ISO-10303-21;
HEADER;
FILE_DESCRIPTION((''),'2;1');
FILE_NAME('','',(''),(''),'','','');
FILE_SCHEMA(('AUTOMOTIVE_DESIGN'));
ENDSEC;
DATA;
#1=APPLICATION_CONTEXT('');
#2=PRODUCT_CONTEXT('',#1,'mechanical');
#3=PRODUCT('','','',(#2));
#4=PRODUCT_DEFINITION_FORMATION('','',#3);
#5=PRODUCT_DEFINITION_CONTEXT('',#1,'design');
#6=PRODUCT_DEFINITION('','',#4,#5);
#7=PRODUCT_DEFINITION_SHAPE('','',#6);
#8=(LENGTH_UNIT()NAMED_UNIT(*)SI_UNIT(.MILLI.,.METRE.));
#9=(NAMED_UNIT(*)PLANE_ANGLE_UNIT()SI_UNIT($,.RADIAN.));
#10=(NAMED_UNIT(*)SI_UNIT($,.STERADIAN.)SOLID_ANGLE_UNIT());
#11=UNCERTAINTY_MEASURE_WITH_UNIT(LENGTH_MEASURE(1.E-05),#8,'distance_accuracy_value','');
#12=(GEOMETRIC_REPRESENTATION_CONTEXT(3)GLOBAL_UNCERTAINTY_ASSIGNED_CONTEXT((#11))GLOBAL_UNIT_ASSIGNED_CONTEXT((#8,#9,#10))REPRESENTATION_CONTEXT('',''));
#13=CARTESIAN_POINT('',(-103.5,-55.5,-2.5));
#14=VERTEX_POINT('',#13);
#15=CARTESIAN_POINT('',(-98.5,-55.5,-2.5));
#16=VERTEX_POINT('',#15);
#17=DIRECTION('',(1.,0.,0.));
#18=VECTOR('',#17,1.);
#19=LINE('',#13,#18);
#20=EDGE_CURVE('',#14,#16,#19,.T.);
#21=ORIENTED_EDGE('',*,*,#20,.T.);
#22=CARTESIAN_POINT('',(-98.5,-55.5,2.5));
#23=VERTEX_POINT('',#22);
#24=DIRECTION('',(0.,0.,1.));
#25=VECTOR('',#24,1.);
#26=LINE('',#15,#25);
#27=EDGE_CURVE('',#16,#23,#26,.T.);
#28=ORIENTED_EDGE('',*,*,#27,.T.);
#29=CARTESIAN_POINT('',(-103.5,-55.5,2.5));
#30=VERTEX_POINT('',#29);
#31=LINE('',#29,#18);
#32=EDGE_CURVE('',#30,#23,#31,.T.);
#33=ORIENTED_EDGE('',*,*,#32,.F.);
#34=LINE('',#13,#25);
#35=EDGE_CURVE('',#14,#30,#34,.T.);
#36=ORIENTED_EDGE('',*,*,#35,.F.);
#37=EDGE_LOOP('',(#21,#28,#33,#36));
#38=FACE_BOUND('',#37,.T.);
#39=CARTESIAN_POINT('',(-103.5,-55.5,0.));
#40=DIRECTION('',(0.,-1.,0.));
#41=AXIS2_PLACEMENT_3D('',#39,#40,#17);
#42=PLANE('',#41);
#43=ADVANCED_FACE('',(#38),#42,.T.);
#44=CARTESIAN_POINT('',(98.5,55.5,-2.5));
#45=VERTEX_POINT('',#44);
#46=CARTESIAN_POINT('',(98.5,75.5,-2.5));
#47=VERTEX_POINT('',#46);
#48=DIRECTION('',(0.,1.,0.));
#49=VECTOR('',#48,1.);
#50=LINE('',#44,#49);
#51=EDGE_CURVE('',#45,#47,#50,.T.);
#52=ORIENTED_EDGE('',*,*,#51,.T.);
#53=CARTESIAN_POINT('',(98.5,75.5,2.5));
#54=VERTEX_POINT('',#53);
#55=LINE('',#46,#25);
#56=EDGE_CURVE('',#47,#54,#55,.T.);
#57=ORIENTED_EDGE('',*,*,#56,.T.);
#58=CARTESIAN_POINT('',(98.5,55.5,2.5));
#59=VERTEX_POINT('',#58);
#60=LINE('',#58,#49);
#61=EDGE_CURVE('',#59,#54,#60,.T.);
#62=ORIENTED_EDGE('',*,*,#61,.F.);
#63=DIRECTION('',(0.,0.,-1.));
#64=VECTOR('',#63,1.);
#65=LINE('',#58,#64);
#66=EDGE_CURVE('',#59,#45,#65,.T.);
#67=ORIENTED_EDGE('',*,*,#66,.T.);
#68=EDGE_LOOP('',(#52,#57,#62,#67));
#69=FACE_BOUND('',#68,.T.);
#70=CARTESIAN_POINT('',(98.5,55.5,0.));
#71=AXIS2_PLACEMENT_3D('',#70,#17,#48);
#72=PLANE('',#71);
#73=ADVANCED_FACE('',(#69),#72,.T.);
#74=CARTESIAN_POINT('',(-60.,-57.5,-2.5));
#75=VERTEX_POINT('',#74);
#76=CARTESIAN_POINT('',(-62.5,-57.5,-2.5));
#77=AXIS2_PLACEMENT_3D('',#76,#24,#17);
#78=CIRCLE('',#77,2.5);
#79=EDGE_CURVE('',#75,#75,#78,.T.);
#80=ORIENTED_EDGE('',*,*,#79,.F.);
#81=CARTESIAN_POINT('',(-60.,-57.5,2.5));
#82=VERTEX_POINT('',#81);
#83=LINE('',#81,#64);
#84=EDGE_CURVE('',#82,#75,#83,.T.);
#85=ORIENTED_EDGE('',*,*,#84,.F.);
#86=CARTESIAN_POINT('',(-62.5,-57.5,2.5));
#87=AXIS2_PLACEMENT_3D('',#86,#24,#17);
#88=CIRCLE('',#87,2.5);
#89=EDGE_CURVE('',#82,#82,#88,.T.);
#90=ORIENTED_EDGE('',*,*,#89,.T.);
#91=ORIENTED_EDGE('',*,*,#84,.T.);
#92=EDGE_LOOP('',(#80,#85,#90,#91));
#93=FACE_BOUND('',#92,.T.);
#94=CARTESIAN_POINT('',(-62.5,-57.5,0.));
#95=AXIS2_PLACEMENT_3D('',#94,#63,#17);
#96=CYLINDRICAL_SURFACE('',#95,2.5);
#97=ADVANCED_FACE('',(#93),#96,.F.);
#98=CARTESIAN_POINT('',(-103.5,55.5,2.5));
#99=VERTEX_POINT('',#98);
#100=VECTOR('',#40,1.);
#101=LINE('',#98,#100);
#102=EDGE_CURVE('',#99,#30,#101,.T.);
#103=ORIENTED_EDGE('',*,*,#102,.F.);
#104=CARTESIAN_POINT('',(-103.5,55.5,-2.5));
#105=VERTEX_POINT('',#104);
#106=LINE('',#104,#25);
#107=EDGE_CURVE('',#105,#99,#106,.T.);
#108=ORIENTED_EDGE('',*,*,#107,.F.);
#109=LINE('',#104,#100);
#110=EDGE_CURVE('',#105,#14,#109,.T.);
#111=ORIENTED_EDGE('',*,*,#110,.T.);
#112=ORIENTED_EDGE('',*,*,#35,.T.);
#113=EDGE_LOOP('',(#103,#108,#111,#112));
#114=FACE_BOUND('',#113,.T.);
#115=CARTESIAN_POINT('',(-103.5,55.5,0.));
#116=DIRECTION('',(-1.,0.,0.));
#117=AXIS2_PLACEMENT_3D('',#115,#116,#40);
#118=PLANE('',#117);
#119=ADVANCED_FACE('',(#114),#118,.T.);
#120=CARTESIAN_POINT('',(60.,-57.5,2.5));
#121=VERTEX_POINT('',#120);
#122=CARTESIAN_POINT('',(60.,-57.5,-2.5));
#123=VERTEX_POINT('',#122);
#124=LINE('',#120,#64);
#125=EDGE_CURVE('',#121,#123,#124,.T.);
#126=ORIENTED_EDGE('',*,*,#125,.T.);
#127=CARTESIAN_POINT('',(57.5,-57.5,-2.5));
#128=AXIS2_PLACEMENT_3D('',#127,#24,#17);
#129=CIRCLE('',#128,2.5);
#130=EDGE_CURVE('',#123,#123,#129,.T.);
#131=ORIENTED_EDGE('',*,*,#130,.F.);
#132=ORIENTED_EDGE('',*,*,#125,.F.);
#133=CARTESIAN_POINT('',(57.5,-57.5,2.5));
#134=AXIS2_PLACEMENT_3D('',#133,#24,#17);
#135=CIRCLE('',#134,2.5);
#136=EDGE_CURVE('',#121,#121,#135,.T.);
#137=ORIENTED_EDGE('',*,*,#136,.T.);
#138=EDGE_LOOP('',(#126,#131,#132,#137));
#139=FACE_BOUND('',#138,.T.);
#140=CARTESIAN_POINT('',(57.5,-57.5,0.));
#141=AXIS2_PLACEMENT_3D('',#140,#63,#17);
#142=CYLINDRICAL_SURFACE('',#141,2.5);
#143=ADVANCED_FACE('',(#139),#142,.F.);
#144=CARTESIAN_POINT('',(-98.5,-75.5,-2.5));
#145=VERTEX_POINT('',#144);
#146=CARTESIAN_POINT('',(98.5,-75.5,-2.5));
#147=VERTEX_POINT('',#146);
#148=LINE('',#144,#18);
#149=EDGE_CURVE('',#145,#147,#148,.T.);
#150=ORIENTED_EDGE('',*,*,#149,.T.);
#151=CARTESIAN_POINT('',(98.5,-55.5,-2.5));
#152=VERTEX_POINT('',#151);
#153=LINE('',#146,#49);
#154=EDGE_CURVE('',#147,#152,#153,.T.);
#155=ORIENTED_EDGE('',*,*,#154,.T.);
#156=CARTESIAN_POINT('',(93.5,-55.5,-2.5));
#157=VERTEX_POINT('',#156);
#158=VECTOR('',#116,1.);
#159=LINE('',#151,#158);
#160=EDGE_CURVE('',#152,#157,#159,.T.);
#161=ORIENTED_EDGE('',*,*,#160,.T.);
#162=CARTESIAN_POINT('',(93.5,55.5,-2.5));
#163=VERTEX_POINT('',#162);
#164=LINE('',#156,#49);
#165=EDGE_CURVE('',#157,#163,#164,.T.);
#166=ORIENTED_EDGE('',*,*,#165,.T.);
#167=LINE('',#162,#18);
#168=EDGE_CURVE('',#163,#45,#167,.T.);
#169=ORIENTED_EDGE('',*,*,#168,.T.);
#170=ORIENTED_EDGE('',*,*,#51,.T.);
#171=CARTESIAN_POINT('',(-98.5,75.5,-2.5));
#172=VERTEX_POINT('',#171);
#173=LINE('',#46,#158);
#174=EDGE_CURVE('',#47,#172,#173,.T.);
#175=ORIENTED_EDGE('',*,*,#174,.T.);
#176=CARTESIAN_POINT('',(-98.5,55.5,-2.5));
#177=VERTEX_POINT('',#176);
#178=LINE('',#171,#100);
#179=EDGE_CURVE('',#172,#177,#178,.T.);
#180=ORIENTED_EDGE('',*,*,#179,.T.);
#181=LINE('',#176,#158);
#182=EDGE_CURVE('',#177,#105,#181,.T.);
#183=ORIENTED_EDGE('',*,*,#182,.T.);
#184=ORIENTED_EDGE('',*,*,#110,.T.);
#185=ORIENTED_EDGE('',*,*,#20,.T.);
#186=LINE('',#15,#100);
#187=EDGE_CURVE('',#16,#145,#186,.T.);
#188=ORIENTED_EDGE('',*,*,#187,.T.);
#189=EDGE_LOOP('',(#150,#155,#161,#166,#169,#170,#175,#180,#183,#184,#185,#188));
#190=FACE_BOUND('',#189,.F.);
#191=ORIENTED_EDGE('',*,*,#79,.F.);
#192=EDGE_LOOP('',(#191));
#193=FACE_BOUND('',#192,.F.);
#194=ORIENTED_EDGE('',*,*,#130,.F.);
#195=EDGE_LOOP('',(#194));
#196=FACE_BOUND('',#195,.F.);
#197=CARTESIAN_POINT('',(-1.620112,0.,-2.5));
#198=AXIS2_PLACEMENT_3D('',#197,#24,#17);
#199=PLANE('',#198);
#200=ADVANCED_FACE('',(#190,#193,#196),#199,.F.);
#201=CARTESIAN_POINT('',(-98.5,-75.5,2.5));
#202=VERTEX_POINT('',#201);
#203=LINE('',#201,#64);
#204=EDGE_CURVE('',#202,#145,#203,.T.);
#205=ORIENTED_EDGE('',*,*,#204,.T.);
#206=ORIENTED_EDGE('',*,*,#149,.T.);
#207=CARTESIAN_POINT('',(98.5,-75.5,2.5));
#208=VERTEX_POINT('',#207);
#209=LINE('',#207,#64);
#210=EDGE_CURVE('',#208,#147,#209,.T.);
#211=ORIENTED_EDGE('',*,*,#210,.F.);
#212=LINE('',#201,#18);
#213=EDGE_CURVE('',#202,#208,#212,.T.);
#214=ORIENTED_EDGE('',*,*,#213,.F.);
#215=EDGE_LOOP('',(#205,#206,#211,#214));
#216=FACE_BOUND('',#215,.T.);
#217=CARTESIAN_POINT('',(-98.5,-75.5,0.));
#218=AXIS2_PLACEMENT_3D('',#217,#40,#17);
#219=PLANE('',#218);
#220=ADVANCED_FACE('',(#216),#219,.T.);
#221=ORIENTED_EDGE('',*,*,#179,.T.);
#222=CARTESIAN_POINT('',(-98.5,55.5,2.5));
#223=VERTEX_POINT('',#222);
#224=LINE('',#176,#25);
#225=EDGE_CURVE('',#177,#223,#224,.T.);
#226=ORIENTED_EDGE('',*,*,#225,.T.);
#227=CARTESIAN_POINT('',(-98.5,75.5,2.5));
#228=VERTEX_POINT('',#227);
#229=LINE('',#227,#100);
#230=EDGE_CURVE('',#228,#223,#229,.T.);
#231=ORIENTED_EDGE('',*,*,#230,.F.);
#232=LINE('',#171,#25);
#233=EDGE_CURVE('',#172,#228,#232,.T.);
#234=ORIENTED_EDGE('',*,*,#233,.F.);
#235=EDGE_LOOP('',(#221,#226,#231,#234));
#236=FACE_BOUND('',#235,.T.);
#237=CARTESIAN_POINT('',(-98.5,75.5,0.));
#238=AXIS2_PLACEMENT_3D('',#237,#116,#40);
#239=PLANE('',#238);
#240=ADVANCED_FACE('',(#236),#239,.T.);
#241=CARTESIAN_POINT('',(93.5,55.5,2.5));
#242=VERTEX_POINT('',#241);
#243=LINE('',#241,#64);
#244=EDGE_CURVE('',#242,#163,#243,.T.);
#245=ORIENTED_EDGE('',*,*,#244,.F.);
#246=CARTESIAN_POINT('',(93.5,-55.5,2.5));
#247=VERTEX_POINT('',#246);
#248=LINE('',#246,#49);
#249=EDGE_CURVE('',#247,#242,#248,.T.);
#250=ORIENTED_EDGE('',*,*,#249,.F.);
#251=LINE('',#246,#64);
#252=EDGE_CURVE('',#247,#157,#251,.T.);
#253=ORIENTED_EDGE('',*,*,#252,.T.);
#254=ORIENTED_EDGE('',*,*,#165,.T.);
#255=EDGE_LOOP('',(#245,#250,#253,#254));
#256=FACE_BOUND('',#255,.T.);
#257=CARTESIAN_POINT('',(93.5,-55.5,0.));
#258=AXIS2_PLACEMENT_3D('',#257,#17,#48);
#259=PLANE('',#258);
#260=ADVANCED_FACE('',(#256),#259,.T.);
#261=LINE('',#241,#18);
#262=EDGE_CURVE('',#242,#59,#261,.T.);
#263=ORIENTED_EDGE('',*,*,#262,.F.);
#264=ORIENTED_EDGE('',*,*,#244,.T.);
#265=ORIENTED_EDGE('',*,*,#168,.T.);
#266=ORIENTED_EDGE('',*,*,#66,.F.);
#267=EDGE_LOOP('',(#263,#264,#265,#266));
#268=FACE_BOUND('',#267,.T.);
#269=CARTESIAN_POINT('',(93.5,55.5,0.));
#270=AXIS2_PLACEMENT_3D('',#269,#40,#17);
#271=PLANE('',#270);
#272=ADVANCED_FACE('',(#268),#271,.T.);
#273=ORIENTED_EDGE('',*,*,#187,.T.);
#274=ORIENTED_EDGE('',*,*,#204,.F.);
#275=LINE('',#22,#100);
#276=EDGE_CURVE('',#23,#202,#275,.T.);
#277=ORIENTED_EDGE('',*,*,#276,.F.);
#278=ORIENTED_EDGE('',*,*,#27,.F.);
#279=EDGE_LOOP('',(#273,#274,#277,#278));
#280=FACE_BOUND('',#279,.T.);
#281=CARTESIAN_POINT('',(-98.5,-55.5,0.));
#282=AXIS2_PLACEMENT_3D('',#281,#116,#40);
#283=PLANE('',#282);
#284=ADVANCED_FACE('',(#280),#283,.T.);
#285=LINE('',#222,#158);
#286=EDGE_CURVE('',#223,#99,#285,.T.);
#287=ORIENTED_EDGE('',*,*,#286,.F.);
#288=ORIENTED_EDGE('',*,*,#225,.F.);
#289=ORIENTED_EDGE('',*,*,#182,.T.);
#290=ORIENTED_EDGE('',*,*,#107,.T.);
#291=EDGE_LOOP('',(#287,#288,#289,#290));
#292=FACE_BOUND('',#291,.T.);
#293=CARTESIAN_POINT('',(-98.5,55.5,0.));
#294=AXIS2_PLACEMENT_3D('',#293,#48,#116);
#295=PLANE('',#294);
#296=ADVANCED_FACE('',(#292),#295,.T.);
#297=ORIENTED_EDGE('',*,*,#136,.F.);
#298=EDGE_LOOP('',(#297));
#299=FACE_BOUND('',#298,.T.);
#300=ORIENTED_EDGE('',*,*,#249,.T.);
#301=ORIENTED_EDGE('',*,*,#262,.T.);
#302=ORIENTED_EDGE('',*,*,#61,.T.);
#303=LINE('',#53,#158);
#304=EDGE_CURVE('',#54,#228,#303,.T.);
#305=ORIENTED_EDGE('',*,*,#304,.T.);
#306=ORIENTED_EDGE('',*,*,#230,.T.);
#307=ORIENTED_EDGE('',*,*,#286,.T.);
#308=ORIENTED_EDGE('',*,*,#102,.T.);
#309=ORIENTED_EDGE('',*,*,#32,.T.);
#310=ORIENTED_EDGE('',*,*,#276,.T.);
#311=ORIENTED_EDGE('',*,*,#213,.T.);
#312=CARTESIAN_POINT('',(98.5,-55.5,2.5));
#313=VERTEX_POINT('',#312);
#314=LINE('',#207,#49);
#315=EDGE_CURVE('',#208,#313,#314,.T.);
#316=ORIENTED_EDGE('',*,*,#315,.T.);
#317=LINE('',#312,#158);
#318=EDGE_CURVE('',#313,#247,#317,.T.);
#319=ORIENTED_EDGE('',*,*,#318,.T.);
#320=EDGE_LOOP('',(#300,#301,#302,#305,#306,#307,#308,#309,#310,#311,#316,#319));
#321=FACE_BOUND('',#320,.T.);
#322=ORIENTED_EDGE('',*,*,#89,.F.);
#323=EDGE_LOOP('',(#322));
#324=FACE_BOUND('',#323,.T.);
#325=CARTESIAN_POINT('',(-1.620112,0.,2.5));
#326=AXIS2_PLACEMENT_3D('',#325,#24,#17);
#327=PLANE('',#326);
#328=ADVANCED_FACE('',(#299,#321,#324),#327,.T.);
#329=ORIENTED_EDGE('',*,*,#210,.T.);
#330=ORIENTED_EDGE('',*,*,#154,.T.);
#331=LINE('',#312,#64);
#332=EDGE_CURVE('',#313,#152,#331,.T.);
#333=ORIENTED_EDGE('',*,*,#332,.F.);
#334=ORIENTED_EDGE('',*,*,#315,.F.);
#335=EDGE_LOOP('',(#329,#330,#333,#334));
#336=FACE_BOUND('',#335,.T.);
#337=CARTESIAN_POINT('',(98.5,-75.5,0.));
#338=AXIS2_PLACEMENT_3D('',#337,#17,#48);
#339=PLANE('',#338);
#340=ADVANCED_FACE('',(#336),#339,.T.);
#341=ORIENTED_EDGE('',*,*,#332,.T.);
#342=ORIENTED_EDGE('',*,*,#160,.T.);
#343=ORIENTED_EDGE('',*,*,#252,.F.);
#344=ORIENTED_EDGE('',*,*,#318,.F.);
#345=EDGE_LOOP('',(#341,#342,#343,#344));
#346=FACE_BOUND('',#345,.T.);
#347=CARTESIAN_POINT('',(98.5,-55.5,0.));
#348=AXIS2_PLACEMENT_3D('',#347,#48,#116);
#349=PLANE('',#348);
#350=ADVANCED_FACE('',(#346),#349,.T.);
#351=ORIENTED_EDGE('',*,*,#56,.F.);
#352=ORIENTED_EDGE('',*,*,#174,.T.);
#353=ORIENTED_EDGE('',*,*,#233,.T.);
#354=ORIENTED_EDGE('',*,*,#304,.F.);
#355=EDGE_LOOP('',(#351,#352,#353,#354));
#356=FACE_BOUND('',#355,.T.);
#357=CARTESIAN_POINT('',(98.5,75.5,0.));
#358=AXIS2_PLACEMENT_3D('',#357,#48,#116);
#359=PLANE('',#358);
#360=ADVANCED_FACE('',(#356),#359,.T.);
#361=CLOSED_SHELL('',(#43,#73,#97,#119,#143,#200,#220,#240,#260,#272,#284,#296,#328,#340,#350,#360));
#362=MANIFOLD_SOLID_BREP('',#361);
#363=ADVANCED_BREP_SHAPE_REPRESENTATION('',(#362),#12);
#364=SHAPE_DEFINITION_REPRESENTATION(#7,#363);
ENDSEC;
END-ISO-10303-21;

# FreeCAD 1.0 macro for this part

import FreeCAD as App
import Part
import Sketcher

V = App.Vector

doc = App.newDocument("Part")
body = doc.addObject("PartDesign::Body", "Body")

# Sketch on XY plane
sketch1 = body.newObject("Sketcher::SketchObject", "Sketch")
sketch1.AttachmentSupport = (doc.getObject("XY_Plane"), [""])
sketch1.MapMode = "FlatFace"
sketch1.addGeometry([
    Part.LineSegment(V(98.5, 55.5, 0), V(98.5, 75.5, 0)),  # 0
    Part.LineSegment(V(98.5, 75.5, 0), V(-98.5, 75.5, 0)),  # 1
    Part.LineSegment(V(-98.5, 75.5, 0), V(-98.5, 55.5, 0)),  # 2
    Part.LineSegment(V(-98.5, 55.5, 0), V(-103.5, 55.5, 0)),  # 3
    Part.LineSegment(V(-103.5, 55.5, 0), V(-103.5, -55.5, 0)),  # 4
    Part.LineSegment(V(-103.5, -55.5, 0), V(-98.5, -55.5, 0)),  # 5
    Part.LineSegment(V(-98.5, -55.5, 0), V(-98.5, -75.5, 0)),  # 6
    Part.LineSegment(V(-98.5, -75.5, 0), V(98.5, -75.5, 0)),  # 7
    Part.LineSegment(V(98.5, -75.5, 0), V(98.5, -55.5, 0)),  # 8
    Part.LineSegment(V(98.5, -55.5, 0), V(93.5, -55.5, 0)),  # 9
    Part.LineSegment(V(93.5, -55.5, 0), V(93.5, 55.5, 0)),  # 10
    Part.LineSegment(V(93.5, 55.5, 0), V(98.5, 55.5, 0)),  # 11
    Part.Circle(V(-62.5, -57.5, 0), V(0, 0, 1), 2.5),  # 12
    Part.Circle(V(57.5, -57.5, 0), V(0, 0, 1), 2.5),  # 13
], False)
sketch1.addConstraint([
    Sketcher.Constraint("Coincident", 0, 2, 1, 1),
    Sketcher.Constraint("Coincident", 1, 2, 2, 1),
    Sketcher.Constraint("Coincident", 2, 2, 3, 1),
    Sketcher.Constraint("Coincident", 3, 2, 4, 1),
    Sketcher.Constraint("Coincident", 4, 2, 5, 1),
    Sketcher.Constraint("Coincident", 5, 2, 6, 1),
    Sketcher.Constraint("Coincident", 6, 2, 7, 1),
    Sketcher.Constraint("Coincident", 7, 2, 8, 1),
    Sketcher.Constraint("Coincident", 8, 2, 9, 1),
    Sketcher.Constraint("Coincident", 9, 2, 10, 1),
    Sketcher.Constraint("Coincident", 10, 2, 11, 1),
    Sketcher.Constraint("Coincident", 11, 2, 0, 1),
    Sketcher.Constraint("Vertical", 0),
    Sketcher.Constraint("Horizontal", 1),
    Sketcher.Constraint("Vertical", 2),
    Sketcher.Constraint("Horizontal", 3),
    Sketcher.Constraint("Vertical", 4),
    Sketcher.Constraint("Horizontal", 5),
    Sketcher.Constraint("Vertical", 6),
    Sketcher.Constraint("Horizontal", 7),
    Sketcher.Constraint("Vertical", 8),
    Sketcher.Constraint("Horizontal", 9),
    Sketcher.Constraint("Vertical", 10),
    Sketcher.Constraint("Horizontal", 11),
    Sketcher.Constraint("Equal", 12, 13),
    Sketcher.Constraint("Symmetric", 0, 2, 6, 2, -1, 1),
    Sketcher.Constraint("Symmetric", 2, 2, 8, 2, -1, 1),
    Sketcher.Constraint("Symmetric", 5, 2, 8, 2, -2),
    Sketcher.Constraint("Horizontal", 12, 3, 13, 3),
    Sketcher.Constraint("Horizontal", 3, 2, 10, 2),
    Sketcher.Constraint("Equal", 5, 9),
    Sketcher.Constraint("Diameter", 12, 5.0),
    Sketcher.Constraint("DistanceX", 1, 2, 1, 1, 197.0),
    Sketcher.Constraint("DistanceX", 3, 2, 3, 1, 5.0),
    Sketcher.Constraint("DistanceY", 0, 1, 0, 2, 20.0),
    Sketcher.Constraint("DistanceY", 4, 2, 4, 1, 111.0),
    Sketcher.Constraint("DistanceX", 12, 3, 13, 3, 120.0),
    Sketcher.Constraint("DistanceX", 13, 3, 0, 2, 41.0),
    Sketcher.Constraint("DistanceY", 13, 3, 0, 2, 133.0),
])
pad1 = body.newObject("PartDesign::Pad", "Pad")
pad1.Profile = sketch1
pad1.Length = 5
pad1.Midplane = True

doc.recompute()
